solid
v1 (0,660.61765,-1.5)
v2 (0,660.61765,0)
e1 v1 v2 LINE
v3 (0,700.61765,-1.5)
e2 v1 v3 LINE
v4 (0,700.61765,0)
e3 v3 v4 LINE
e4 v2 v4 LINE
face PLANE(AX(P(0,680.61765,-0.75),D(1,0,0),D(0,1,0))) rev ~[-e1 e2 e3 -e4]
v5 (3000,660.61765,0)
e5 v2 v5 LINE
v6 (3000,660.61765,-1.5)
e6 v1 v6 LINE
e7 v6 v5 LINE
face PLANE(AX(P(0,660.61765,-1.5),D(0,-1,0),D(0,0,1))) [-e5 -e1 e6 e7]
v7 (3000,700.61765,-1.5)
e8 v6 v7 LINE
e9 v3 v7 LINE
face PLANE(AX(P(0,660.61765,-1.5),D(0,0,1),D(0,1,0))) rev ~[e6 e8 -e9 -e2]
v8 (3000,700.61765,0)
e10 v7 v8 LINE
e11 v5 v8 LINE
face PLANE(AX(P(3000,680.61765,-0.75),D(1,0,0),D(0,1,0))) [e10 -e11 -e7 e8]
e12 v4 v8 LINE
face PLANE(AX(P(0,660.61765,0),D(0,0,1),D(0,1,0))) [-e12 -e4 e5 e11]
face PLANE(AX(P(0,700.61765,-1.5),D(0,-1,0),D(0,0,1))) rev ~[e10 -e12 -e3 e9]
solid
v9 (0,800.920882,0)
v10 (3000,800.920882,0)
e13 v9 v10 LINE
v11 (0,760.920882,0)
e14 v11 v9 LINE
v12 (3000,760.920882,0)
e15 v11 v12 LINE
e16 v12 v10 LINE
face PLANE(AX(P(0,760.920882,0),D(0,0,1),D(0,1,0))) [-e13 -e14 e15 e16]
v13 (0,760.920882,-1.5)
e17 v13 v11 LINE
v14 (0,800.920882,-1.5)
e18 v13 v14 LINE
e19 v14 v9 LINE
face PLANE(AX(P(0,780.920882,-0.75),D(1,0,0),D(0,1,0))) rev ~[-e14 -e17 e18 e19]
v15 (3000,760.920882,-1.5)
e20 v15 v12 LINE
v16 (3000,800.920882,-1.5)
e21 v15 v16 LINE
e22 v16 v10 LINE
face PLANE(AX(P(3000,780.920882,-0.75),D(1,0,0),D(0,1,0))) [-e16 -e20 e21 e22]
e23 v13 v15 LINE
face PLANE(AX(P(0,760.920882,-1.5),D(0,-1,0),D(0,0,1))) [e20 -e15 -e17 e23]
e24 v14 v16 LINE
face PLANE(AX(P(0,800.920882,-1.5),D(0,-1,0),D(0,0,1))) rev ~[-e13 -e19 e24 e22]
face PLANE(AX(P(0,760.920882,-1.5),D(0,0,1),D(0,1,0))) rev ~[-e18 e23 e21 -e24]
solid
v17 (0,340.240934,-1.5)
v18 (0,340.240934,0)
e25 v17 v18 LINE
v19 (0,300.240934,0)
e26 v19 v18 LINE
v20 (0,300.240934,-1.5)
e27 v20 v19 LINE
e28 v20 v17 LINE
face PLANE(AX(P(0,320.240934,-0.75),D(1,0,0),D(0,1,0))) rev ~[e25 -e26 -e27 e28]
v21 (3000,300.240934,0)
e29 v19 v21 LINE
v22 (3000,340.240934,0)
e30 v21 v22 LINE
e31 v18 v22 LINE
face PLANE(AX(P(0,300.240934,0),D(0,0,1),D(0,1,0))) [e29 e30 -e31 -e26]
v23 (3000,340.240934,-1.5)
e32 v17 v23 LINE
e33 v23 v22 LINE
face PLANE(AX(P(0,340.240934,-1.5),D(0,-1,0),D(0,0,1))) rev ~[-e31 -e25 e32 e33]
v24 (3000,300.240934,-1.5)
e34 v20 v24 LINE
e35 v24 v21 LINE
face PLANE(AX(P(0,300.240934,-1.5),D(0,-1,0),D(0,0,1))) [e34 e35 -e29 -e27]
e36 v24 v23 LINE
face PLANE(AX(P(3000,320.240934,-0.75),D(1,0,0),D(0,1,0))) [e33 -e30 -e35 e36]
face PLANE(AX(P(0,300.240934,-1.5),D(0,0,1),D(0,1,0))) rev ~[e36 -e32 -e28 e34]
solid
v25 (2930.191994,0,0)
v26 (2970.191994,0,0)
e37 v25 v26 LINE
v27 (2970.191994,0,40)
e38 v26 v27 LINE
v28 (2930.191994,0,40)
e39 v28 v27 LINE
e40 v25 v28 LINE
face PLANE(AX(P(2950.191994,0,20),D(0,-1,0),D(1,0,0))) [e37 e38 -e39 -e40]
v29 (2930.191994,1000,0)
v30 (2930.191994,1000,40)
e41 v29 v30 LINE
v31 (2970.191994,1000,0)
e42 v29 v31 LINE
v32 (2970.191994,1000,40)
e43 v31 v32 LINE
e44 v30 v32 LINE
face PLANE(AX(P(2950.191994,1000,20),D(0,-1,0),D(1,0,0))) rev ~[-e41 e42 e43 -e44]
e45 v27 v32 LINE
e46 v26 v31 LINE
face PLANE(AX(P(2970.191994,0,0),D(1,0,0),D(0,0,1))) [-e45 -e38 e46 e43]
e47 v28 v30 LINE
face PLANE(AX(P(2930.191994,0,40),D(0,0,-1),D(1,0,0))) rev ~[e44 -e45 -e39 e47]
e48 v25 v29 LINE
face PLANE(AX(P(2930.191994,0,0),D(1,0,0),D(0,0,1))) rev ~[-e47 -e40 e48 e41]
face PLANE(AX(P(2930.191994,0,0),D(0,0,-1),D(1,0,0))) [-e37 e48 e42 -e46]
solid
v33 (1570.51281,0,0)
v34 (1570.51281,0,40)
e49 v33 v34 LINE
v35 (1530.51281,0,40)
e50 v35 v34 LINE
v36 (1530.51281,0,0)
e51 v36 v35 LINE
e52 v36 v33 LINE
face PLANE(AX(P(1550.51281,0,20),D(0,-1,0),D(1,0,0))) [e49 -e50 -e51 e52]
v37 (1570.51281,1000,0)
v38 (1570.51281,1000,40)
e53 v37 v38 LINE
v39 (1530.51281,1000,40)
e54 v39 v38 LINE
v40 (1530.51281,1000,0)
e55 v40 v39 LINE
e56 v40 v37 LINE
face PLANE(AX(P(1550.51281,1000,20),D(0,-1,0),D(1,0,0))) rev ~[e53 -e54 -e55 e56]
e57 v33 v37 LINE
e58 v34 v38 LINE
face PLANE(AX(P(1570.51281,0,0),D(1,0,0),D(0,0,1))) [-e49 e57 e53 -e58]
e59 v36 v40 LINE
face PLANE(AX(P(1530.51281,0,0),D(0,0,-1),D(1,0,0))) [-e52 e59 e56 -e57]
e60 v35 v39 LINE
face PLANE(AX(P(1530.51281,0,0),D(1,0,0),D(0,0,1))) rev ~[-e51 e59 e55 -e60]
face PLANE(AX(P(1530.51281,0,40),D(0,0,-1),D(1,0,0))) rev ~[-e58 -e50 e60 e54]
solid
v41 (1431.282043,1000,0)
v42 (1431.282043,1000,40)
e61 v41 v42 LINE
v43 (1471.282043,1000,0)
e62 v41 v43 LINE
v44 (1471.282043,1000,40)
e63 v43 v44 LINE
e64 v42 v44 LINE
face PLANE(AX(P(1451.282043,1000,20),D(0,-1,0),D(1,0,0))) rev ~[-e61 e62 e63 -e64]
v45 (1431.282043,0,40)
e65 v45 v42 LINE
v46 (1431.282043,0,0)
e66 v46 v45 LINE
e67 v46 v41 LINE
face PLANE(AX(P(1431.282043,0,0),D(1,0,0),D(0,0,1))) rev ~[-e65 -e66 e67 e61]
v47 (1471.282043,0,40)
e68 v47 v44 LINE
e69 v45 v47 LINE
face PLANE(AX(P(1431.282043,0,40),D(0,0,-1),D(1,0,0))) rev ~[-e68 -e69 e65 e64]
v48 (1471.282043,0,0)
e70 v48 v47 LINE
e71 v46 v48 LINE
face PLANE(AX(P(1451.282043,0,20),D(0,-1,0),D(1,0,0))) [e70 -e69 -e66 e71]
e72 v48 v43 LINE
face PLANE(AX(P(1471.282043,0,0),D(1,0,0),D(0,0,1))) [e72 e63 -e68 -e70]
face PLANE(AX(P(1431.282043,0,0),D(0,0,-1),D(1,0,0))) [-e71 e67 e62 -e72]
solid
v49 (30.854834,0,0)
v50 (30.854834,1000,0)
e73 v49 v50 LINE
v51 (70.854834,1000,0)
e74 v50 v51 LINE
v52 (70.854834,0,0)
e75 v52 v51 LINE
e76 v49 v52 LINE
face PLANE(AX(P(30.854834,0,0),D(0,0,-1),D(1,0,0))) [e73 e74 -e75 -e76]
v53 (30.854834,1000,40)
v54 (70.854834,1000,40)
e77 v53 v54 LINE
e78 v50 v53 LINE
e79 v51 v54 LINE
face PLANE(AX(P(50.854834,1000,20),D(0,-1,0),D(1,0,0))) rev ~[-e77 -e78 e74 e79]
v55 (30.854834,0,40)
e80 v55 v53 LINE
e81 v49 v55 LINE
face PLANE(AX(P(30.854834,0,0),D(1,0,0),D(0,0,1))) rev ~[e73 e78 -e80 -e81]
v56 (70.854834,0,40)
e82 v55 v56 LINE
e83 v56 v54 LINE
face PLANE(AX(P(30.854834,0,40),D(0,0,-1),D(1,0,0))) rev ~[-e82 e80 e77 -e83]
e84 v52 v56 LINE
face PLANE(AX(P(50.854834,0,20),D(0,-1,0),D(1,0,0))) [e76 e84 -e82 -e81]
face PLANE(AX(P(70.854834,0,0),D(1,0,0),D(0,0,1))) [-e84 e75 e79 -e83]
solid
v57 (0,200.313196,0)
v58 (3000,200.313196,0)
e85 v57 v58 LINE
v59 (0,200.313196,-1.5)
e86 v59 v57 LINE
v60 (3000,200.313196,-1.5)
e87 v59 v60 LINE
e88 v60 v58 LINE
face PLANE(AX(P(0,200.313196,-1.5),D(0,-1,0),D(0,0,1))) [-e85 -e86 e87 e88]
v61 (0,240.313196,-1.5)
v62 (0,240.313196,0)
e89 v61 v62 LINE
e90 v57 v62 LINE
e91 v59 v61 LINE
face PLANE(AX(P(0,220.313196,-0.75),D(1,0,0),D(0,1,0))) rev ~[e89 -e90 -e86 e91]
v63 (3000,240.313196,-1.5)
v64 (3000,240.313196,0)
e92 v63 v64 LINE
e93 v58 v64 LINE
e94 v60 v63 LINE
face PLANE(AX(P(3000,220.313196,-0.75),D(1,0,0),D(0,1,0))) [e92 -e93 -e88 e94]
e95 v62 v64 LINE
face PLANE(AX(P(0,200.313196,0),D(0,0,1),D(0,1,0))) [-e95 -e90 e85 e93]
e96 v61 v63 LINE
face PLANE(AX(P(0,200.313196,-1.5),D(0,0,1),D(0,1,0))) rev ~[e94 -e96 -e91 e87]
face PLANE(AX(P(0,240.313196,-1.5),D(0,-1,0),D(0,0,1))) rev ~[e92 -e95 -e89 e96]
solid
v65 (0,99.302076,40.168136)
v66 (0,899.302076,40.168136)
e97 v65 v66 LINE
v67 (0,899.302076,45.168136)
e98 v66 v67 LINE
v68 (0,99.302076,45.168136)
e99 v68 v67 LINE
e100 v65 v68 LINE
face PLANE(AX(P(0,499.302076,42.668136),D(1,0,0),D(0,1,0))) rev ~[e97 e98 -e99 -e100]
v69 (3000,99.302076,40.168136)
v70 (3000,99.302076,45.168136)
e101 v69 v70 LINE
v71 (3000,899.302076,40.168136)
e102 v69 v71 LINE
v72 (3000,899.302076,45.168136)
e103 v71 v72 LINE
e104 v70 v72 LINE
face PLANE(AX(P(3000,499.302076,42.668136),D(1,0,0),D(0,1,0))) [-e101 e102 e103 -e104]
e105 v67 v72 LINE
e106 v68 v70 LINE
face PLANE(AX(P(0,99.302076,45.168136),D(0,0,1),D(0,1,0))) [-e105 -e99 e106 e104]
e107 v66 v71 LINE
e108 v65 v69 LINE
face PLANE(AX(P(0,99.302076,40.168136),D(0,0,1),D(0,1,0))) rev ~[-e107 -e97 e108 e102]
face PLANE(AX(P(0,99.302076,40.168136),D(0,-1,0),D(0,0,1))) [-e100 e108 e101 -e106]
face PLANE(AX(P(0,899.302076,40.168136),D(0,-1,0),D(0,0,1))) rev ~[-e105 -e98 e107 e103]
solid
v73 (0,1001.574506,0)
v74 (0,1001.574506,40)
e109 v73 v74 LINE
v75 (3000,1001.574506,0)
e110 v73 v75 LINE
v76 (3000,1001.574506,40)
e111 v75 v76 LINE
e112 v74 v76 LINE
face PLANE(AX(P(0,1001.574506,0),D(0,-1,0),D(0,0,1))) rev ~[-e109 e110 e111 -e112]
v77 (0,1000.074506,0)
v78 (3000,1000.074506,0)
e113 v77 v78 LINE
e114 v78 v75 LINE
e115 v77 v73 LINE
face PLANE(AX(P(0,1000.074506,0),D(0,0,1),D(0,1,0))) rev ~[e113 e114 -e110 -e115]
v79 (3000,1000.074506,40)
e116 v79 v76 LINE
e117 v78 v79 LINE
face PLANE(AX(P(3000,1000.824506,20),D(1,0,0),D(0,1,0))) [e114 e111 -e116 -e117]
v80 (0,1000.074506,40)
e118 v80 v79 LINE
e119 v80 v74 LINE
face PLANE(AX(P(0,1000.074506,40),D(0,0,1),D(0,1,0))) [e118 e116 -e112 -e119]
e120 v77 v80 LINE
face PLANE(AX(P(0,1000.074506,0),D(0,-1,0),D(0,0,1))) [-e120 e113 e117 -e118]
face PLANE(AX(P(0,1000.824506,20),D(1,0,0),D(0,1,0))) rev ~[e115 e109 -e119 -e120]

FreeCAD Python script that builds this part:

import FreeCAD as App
import Part
import Sketcher
Q = App.Units.Quantity


def add_polygon(sketch, points):
    """Adds a closed chain of lines whose ends are joined by coincident constraints."""
    first, n = sketch.GeometryCount, len(points)
    for a, b in zip(points, points[1:] + points[:1]):
        sketch.addGeometry(Part.LineSegment(App.Vector(*a, 0), App.Vector(*b, 0)), False)
    for i in range(n):
        sketch.addConstraint(Sketcher.Constraint("Coincident", first + i, 2, first + (i + 1) % n, 1))

doc = App.newDocument("Part")
body = doc.addObject("PartDesign::Body", "Body")
body.AllowCompound = True

sketch1 = body.newObject("Sketcher::SketchObject", "Sketch")
sketch1.AttachmentSupport = (doc.getObject("XZ_Plane"), [""])
sketch1.MapMode = "FlatFace"
add_polygon(sketch1, [(31, 40), (31, 0), (71, 0), (71, 40)])
add_polygon(sketch1, [(1431, 40), (1431, 0), (1471, 0), (1471, 40)])
add_polygon(sketch1, [(1531, 40), (1531, 0), (1571, 0), (1571, 40)])
add_polygon(sketch1, [(2930, 40), (2930, 0), (2970, 0), (2970, 40)])
sketch1.addConstraint(Sketcher.Constraint("Vertical", 0))
sketch1.addConstraint(Sketcher.Constraint("Horizontal", 1))
sketch1.addConstraint(Sketcher.Constraint("Vertical", 2))
sketch1.addConstraint(Sketcher.Constraint("Horizontal", 3))
sketch1.addConstraint(Sketcher.Constraint("Vertical", 4))
sketch1.addConstraint(Sketcher.Constraint("Horizontal", 5))
sketch1.addConstraint(Sketcher.Constraint("Vertical", 6))
sketch1.addConstraint(Sketcher.Constraint("Horizontal", 7))
sketch1.addConstraint(Sketcher.Constraint("Vertical", 8))
sketch1.addConstraint(Sketcher.Constraint("Horizontal", 9))
sketch1.addConstraint(Sketcher.Constraint("Vertical", 10))
sketch1.addConstraint(Sketcher.Constraint("Horizontal", 11))
sketch1.addConstraint(Sketcher.Constraint("Vertical", 12))
sketch1.addConstraint(Sketcher.Constraint("Horizontal", 13))
sketch1.addConstraint(Sketcher.Constraint("Vertical", 14))
sketch1.addConstraint(Sketcher.Constraint("Horizontal", 15))
sketch1.addConstraint(Sketcher.Constraint("PointOnObject", 0, 2, -1))
sketch1.addConstraint(Sketcher.Constraint("PointOnObject", 4, 2, -1))
sketch1.addConstraint(Sketcher.Constraint("PointOnObject", 8, 2, -1))
sketch1.addConstraint(Sketcher.Constraint("PointOnObject", 12, 2, -1))
sketch1.addConstraint(Sketcher.Constraint("Horizontal", 3, 2, 6, 2))
sketch1.addConstraint(Sketcher.Constraint("Horizontal", 7, 2, 10, 2))
sketch1.addConstraint(Sketcher.Constraint("Horizontal", 11, 2, 14, 2))
sketch1.addConstraint(Sketcher.Constraint("Equal", 3, 5))
sketch1.addConstraint(Sketcher.Constraint("Equal", 7, 9))
sketch1.addConstraint(Sketcher.Constraint("Equal", 11, 13))
sketch1.addConstraint(Sketcher.Constraint("Equal", 15, 0))
sketch1.addConstraint(Sketcher.Constraint("DistanceX", 1, 1, 1, 2, Q("40 mm")))
sketch1.addConstraint(Sketcher.Constraint("DistanceX", -1, 1, 8, 2, Q("1530.51281 mm")))
sketch1.addConstraint(Sketcher.Constraint("DistanceX", 1, 2, 4, 2, Q("1360.427209 mm")))
sketch1.addConstraint(Sketcher.Constraint("DistanceX", 5, 2, 12, 2, Q("1458.909951 mm")))
sketch1.addConstraint(Sketcher.Constraint("DistanceX", -1, 1, 0, 2, Q("30.854834 mm")))
pad1 = body.newObject("PartDesign::Pad", "Pad")
pad1.Profile = sketch1
pad1.Length = 1000
pad1.Reversed = True
body2 = doc.addObject("PartDesign::Body", "Body001")
body2.AllowCompound = True

sketch2 = body2.newObject("Sketcher::SketchObject", "Sketch001")
sketch2.AttachmentSupport = (doc.getObject("YZ_Plane001"), [""])
sketch2.MapMode = "FlatFace"
add_polygon(sketch2, [(760.9, 0), (760.9, -1.5), (800.9, -1.5), (800.9, 0)])
add_polygon(sketch2, [(660.6, 0), (660.6, -1.5), (700.6, -1.5), (700.6, 0)])
add_polygon(sketch2, [(300.2, 0), (300.2, -1.5), (340.2, -1.5), (340.2, 0)])
add_polygon(sketch2, [(200.3, 0), (200.3, -1.5), (240.3, -1.5), (240.3, 0)])
sketch2.addConstraint(Sketcher.Constraint("Vertical", 0))
sketch2.addConstraint(Sketcher.Constraint("Horizontal", 1))
sketch2.addConstraint(Sketcher.Constraint("Vertical", 2))
sketch2.addConstraint(Sketcher.Constraint("Horizontal", 3))
sketch2.addConstraint(Sketcher.Constraint("Vertical", 4))
sketch2.addConstraint(Sketcher.Constraint("Horizontal", 5))
sketch2.addConstraint(Sketcher.Constraint("Vertical", 6))
sketch2.addConstraint(Sketcher.Constraint("Horizontal", 7))
sketch2.addConstraint(Sketcher.Constraint("Vertical", 8))
sketch2.addConstraint(Sketcher.Constraint("Horizontal", 9))
sketch2.addConstraint(Sketcher.Constraint("Vertical", 10))
sketch2.addConstraint(Sketcher.Constraint("Horizontal", 11))
sketch2.addConstraint(Sketcher.Constraint("Vertical", 12))
sketch2.addConstraint(Sketcher.Constraint("Horizontal", 13))
sketch2.addConstraint(Sketcher.Constraint("Vertical", 14))
sketch2.addConstraint(Sketcher.Constraint("Horizontal", 15))
sketch2.addConstraint(Sketcher.Constraint("PointOnObject", 2, 2, -1))
sketch2.addConstraint(Sketcher.Constraint("PointOnObject", 6, 2, -1))
sketch2.addConstraint(Sketcher.Constraint("PointOnObject", 10, 2, -1))
sketch2.addConstraint(Sketcher.Constraint("PointOnObject", 14, 2, -1))
sketch2.addConstraint(Sketcher.Constraint("Horizontal", 1, 2, 4, 2))
sketch2.addConstraint(Sketcher.Constraint("Horizontal", 5, 2, 8, 2))
sketch2.addConstraint(Sketcher.Constraint("Horizontal", 9, 2, 12, 2))
sketch2.addConstraint(Sketcher.Constraint("Equal", 3, 5))
sketch2.addConstraint(Sketcher.Constraint("Equal", 7, 9))
sketch2.addConstraint(Sketcher.Constraint("Equal", 11, 13))
sketch2.addConstraint(Sketcher.Constraint("DistanceX", 1, 1, 1, 2, Q("40 mm")))
sketch2.addConstraint(Sketcher.Constraint("DistanceY", 0, 2, 0, 1, Q("1.5 mm")))
sketch2.addConstraint(Sketcher.Constraint("DistanceX", -1, 1, 0, 2, Q("760.920882 mm")))
sketch2.addConstraint(Sketcher.Constraint("DistanceX", -1, 1, 4, 2, Q("660.61765 mm")))
sketch2.addConstraint(Sketcher.Constraint("DistanceX", 8, 2, 0, 2, Q("460.679948 mm")))
sketch2.addConstraint(Sketcher.Constraint("DistanceX", -1, 1, 12, 2, Q("200.313196 mm")))
pad2 = body2.newObject("PartDesign::Pad", "Pad001")
pad2.Profile = sketch2
pad2.Length = 3000
body3 = doc.addObject("PartDesign::Body", "Body002")

sketch3 = body3.newObject("Sketcher::SketchObject", "Sketch002")
sketch3.AttachmentSupport = (doc.getObject("YZ_Plane002"), [""])
sketch3.MapMode = "FlatFace"
add_polygon(sketch3, [(1000.1, 40), (1000.1, 0), (1001.6, 0), (1001.6, 40)])
sketch3.addConstraint(Sketcher.Constraint("Vertical", 0))
sketch3.addConstraint(Sketcher.Constraint("Horizontal", 1))
sketch3.addConstraint(Sketcher.Constraint("Vertical", 2))
sketch3.addConstraint(Sketcher.Constraint("Horizontal", 3))
sketch3.addConstraint(Sketcher.Constraint("PointOnObject", 0, 2, -1))
sketch3.addConstraint(Sketcher.Constraint("DistanceY", 0, 2, 0, 1, Q("40 mm")))
sketch3.addConstraint(Sketcher.Constraint("DistanceX", 1, 1, 1, 2, Q("1.5 mm")))
sketch3.addConstraint(Sketcher.Constraint("DistanceX", -1, 1, 0, 2, Q("1000.074506 mm")))
pad3 = body3.newObject("PartDesign::Pad", "Pad002")
pad3.Profile = sketch3
pad3.Length = 3000
body4 = doc.addObject("PartDesign::Body", "Body003")

sketch4 = body4.newObject("Sketcher::SketchObject", "Sketch003")
sketch4.AttachmentSupport = (doc.getObject("YZ_Plane003"), [""])
sketch4.MapMode = "FlatFace"
add_polygon(sketch4, [(99, 45), (99, 40), (899, 40), (899, 45)])
sketch4.addConstraint(Sketcher.Constraint("Vertical", 0))
sketch4.addConstraint(Sketcher.Constraint("Horizontal", 1))
sketch4.addConstraint(Sketcher.Constraint("Vertical", 2))
sketch4.addConstraint(Sketcher.Constraint("Horizontal", 3))
sketch4.addConstraint(Sketcher.Constraint("DistanceX", 1, 1, 1, 2, Q("800 mm")))
sketch4.addConstraint(Sketcher.Constraint("DistanceY", 0, 2, 0, 1, Q("5 mm")))
sketch4.addConstraint(Sketcher.Constraint("DistanceX", -1, 1, 0, 2, Q("99.302076 mm")))
sketch4.addConstraint(Sketcher.Constraint("DistanceY", -1, 1, 0, 2, Q("40.168136 mm")))
pad4 = body4.newObject("PartDesign::Pad", "Pad003")
pad4.Profile = sketch4
pad4.Length = 3000

doc.recompute()
